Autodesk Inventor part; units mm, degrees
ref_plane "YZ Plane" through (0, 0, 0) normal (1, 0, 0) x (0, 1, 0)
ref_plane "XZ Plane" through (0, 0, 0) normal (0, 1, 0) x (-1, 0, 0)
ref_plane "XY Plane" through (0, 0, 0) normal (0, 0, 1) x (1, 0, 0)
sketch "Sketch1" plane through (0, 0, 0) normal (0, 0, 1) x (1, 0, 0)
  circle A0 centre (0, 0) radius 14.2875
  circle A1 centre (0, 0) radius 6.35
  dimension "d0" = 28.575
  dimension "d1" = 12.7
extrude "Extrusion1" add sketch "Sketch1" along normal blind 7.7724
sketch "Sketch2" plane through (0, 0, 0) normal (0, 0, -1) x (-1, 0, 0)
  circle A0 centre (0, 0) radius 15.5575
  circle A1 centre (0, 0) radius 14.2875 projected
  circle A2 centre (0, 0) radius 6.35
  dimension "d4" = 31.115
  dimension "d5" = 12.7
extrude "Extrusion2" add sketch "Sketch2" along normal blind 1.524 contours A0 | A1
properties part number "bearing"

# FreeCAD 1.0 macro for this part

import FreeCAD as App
import Part
import Sketcher

V = App.Vector
Q = App.Units.Quantity

doc = App.newDocument("Part")
body = doc.addObject("PartDesign::Body", "Body")

# Sketch on XY plane
sketch1 = body.newObject("Sketcher::SketchObject", "Sketch")
sketch1.AttachmentSupport = (doc.getObject("XY_Plane"), [""])
sketch1.MapMode = "FlatFace"
sketch1.addGeometry(Part.Circle(V(0, 0, 0), V(0, 0, 1), 14.2875), False)
sketch1.addGeometry(Part.Circle(V(0, 0, 0), V(0, 0, 1), 6.35), False)
sketch1.addConstraint(Sketcher.Constraint("Coincident", 0, 3, -1, 1))
sketch1.addConstraint(Sketcher.Constraint("Coincident", 1, 3, -1, 1))
sketch1.addConstraint(Sketcher.Constraint("Diameter", 1, Q("0.5 in")))
sketch1.addConstraint(Sketcher.Constraint("Diameter", 0, Q("1.125 in")))
pad1 = body.newObject("PartDesign::Pad", "Pad")
pad1.Profile = sketch1
pad1.Length = Q("0.306 in")

# Sketch on XY plane
sketch2 = body.newObject("Sketcher::SketchObject", "Sketch001")
sketch2.AttachmentSupport = (doc.getObject("XY_Plane"), [""])
sketch2.MapMode = "FlatFace"
sketch2.addGeometry(Part.Circle(V(0, 0, 0), V(0, 0, 1), 15.5575), False)
sketch2.addGeometry(Part.Circle(V(0, 0, 0), V(0, 0, 1), 6.35), False)
sketch2.addConstraint(Sketcher.Constraint("Coincident", 0, 3, -1, 1))
sketch2.addConstraint(Sketcher.Constraint("Coincident", 1, 3, -1, 1))
sketch2.addConstraint(Sketcher.Constraint("Diameter", 1, Q("0.5 in")))
sketch2.addConstraint(Sketcher.Constraint("Diameter", 0, Q("1.225 in")))
pad2 = body.newObject("PartDesign::Pad", "Pad001")
pad2.Profile = sketch2
pad2.Length = Q("0.06 in")
pad2.Reversed = True

doc.recompute()
